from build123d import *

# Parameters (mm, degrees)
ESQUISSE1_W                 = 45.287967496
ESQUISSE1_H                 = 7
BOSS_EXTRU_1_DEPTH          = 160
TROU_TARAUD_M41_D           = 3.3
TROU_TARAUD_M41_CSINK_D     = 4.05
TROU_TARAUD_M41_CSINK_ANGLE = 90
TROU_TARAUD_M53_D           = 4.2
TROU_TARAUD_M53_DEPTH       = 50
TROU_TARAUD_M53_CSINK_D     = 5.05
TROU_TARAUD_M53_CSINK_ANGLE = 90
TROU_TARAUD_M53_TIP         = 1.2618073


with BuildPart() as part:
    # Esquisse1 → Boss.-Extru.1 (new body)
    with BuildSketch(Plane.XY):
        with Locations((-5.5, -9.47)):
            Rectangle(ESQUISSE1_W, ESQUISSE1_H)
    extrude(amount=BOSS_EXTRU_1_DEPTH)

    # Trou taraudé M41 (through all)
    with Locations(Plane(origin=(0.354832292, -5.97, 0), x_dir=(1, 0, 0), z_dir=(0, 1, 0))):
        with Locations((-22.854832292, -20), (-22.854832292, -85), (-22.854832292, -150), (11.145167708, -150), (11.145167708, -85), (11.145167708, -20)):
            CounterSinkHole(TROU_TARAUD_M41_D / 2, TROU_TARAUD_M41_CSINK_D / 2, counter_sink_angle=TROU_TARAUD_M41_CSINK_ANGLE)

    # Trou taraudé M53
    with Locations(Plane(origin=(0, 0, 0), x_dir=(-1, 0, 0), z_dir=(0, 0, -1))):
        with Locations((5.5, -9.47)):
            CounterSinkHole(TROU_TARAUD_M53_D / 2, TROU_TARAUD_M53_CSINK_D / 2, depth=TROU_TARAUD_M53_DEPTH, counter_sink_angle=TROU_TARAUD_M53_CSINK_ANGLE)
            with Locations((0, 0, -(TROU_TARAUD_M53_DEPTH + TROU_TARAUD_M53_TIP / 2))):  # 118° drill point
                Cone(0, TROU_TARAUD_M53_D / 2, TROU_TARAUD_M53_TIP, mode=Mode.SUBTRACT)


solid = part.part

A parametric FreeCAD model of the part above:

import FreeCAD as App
import Part
import Sketcher

V = App.Vector


def add_polygon(sketch, points):
    """Adds a closed chain of lines whose ends are joined by coincident constraints."""
    first, n = sketch.GeometryCount, len(points)
    for a, b in zip(points, points[1:] + points[:1]):
        sketch.addGeometry(Part.LineSegment(App.Vector(*a, 0), App.Vector(*b, 0)), False)
    for i in range(n):
        sketch.addConstraint(Sketcher.Constraint("Coincident", first + i, 2, first + (i + 1) % n, 1))

doc = App.newDocument("Part")
body = doc.addObject("PartDesign::Body", "Body")

# Sketch on XY plane
sketch1 = body.newObject("Sketcher::SketchObject", "Sketch")
sketch1.AttachmentSupport = (doc.getObject("XY_Plane"), [""])
sketch1.MapMode = "FlatFace"
add_polygon(sketch1, [(-28.143984, -5.97), (-28.143984, -12.97), (17.143984, -12.97), (17.143984, -5.97)])  # lines 0-3
sketch1.addConstraint(Sketcher.Constraint("Vertical", 0))
sketch1.addConstraint(Sketcher.Constraint("Horizontal", 1))
sketch1.addConstraint(Sketcher.Constraint("Vertical", 2))
sketch1.addConstraint(Sketcher.Constraint("Horizontal", 3))
sketch1.addConstraint(Sketcher.Constraint("DistanceY", 0, 2, 0, 1, 7.0))
sketch1.addConstraint(Sketcher.Constraint("DistanceY", 0, 2, -1, 1, 12.97))
sketch1.addConstraint(Sketcher.Constraint("DistanceX", 1, 1, 1, 2, 45.287967))
sketch1.addConstraint(Sketcher.Constraint("DistanceX", 0, 2, -1, 1, 28.143984))
pad1 = body.newObject("PartDesign::Pad", "Pad")
pad1.Profile = sketch1
pad1.Length = 160

# Sketch on XZ plane
sketch2 = body.newObject("Sketcher::SketchObject", "Sketch001")
sketch2.AttachmentSupport = (doc.getObject("XZ_Plane"), [""])
sketch2.MapMode = "FlatFace"
sketch2.AttachmentOffset = App.Placement(V(0, 0, 5.97), App.Rotation())
sketch2.addGeometry(Part.Circle(V(-22.5, 20, 0), V(0, 0, 1), 1.65), False)
sketch2.addGeometry(Part.Circle(V(-22.5, 85, 0), V(0, 0, 1), 1.65), False)
sketch2.addGeometry(Part.Circle(V(-22.5, 150, 0), V(0, 0, 1), 1.65), False)
sketch2.addGeometry(Part.Circle(V(11.5, 150, 0), V(0, 0, 1), 1.65), False)
sketch2.addGeometry(Part.Circle(V(11.5, 85, 0), V(0, 0, 1), 1.65), False)
sketch2.addGeometry(Part.Circle(V(11.5, 20, 0), V(0, 0, 1), 1.65), False)
sketch2.addConstraint(Sketcher.Constraint("Equal", 0, 1))
sketch2.addConstraint(Sketcher.Constraint("Equal", 1, 2))
sketch2.addConstraint(Sketcher.Constraint("Equal", 2, 3))
sketch2.addConstraint(Sketcher.Constraint("Equal", 3, 4))
sketch2.addConstraint(Sketcher.Constraint("Equal", 4, 5))
sketch2.addConstraint(Sketcher.Constraint("Horizontal", 2, 3, 3, 3))
sketch2.addConstraint(Sketcher.Constraint("Horizontal", 1, 3, 4, 3))
sketch2.addConstraint(Sketcher.Constraint("Horizontal", 0, 3, 5, 3))
sketch2.addConstraint(Sketcher.Constraint("Vertical", 0, 3, 1, 3))
sketch2.addConstraint(Sketcher.Constraint("Vertical", 1, 3, 2, 3))
sketch2.addConstraint(Sketcher.Constraint("Vertical", 3, 3, 4, 3))
sketch2.addConstraint(Sketcher.Constraint("Vertical", 4, 3, 5, 3))
sketch2.addConstraint(Sketcher.Constraint("Diameter", 0, 3.3))
sketch2.addConstraint(Sketcher.Constraint("DistanceY", -1, 1, 0, 3, 20.0))
sketch2.addConstraint(Sketcher.Constraint("DistanceY", -1, 1, 1, 3, 85.0))
sketch2.addConstraint(Sketcher.Constraint("DistanceY", -1, 1, 2, 3, 150.0))
sketch2.addConstraint(Sketcher.Constraint("DistanceX", 2, 3, 3, 3, 34.0))
sketch2.addConstraint(Sketcher.Constraint("DistanceX", 0, 3, -1, 1, 22.5))
doc.recompute()
hole = body.newObject("PartDesign::Hole", "Hole")
hole.Profile = sketch2
hole.ThreadType = "None"
hole.Diameter = 3.3
hole.DepthType = "ThroughAll"
hole.HoleCutType = "Countersink"
hole.HoleCutDiameter = 4.05
hole.HoleCutCountersinkAngle = 90
hole.Reversed = True

# Sketch on XY plane
sketch3 = body.newObject("Sketcher::SketchObject", "Sketch002")
sketch3.AttachmentSupport = (doc.getObject("XY_Plane"), [""])
sketch3.MapMode = "FlatFace"
sketch3.addGeometry(Part.Circle(V(-5.5, -9.47, 0), V(0, 0, 1), 2.1), False)
sketch3.addConstraint(Sketcher.Constraint("Diameter", 0, 4.2))
sketch3.addConstraint(Sketcher.Constraint("DistanceX", 0, 3, -1, 1, 5.5))
sketch3.addConstraint(Sketcher.Constraint("DistanceY", 0, 3, -1, 1, 9.47))
doc.recompute()
hole2 = body.newObject("PartDesign::Hole", "Hole001")
hole2.Profile = sketch3
hole2.ThreadType = "None"
hole2.Diameter = 4.2
hole2.DepthType = "Dimension"
hole2.Depth = 50
hole2.DrillPoint = "Angled"
hole2.DrillPointAngle = 118
hole2.HoleCutType = "Countersink"
hole2.HoleCutDiameter = 5.05
hole2.HoleCutCountersinkAngle = 90
hole2.Reversed = True

doc.recompute()
